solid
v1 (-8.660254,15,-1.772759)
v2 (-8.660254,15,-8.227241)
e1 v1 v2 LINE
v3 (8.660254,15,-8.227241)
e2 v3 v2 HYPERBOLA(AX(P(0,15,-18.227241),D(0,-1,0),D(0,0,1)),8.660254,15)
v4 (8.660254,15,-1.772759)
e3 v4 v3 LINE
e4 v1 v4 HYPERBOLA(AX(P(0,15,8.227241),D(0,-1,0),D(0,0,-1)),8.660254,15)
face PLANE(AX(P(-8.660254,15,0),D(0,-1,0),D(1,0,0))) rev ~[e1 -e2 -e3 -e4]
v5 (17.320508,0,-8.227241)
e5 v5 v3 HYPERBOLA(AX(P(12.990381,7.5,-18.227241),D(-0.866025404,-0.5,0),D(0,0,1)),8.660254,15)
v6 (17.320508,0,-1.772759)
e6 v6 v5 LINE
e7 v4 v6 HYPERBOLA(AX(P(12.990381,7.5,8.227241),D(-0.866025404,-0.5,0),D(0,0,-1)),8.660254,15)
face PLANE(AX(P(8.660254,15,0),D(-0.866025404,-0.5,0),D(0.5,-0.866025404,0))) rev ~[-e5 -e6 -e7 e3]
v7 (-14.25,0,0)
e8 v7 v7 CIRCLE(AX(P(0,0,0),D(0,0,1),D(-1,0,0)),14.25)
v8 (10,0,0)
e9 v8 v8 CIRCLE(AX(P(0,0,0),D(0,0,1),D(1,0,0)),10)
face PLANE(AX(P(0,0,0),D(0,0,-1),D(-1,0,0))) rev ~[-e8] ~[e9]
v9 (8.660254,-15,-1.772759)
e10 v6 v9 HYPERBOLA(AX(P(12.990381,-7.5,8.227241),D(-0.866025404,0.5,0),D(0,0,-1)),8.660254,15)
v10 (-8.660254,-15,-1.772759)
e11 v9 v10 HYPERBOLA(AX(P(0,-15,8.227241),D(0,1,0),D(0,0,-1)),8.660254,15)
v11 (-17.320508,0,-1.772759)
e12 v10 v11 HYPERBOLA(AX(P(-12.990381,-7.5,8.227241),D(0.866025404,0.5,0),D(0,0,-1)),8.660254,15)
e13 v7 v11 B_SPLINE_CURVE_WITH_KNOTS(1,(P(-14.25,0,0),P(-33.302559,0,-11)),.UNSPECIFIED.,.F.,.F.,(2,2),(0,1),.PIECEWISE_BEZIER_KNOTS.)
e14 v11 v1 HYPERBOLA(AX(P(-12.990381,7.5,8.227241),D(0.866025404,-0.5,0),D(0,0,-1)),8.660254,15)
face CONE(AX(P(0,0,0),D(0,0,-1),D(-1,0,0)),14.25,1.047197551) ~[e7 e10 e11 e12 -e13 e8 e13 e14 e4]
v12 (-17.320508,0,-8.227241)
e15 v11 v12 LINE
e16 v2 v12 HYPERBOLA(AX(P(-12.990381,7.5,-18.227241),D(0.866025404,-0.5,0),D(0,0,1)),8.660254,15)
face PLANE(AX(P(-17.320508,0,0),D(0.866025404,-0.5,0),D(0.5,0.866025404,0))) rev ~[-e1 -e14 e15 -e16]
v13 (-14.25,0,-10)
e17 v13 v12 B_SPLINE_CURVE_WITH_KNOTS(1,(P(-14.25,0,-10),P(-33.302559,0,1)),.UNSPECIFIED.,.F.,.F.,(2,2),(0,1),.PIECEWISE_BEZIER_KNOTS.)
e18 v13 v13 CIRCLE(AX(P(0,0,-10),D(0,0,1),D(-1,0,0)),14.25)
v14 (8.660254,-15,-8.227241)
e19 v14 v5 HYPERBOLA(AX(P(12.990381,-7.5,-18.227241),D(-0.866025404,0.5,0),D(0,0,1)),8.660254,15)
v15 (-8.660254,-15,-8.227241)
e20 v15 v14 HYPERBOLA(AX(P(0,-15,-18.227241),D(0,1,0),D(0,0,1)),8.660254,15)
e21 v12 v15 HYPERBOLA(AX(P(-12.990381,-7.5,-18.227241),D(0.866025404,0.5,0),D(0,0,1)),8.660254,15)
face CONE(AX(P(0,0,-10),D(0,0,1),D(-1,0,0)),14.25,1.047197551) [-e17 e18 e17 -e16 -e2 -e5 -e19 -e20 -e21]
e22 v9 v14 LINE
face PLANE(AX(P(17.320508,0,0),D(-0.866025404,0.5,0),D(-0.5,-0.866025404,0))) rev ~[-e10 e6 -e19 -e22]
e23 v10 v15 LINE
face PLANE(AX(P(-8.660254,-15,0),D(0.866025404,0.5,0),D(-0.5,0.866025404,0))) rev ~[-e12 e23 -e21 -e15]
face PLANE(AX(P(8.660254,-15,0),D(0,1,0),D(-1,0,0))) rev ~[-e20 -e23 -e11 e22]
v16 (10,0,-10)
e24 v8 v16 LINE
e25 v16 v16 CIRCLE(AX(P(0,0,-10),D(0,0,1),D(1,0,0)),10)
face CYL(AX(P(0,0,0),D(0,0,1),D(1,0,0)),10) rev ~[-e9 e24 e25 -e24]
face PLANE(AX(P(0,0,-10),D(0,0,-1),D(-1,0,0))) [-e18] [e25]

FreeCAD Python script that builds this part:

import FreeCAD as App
import Part
import Sketcher

V = App.Vector
Q = App.Units.Quantity

doc = App.newDocument("Part")
params = doc.addObject("Spreadsheet::Sheet", "Params")
for row, (alias, value) in enumerate([
    ("sketch1_diameter", "20 mm"),
    ("pad1_length", "10 mm"),
    ("sketch2_diameter", "28.5 mm"),
    ("pocket1_length", "11 mm"),
    ("pocket1_taper", "60 deg"),
], start=1):
    params.set(f"A{row}", alias)
    params.set(f"B{row}", "=" + value)
    params.setAlias(f"B{row}", alias)

body = doc.addObject("PartDesign::Body", "Body")

sketch1 = doc.addObject("Sketcher::SketchObject", "Sketch")
body.addObject(sketch1)
sketch1.AttachmentSupport = (doc.XY_Plane, [""])
sketch1.MapMode = "FlatFace"
sketch1.addGeometry([
    Part.LineSegment(V(-9, -15, 0), V(9, -15, 0)),
    Part.LineSegment(V(9, -15, 0), V(17, 0, 0)),
    Part.LineSegment(V(17, 0, 0), V(9, 15, 0)),
    Part.LineSegment(V(9, 15, 0), V(-9, 15, 0)),
    Part.LineSegment(V(-9, 15, 0), V(-17, 0, 0)),
    Part.LineSegment(V(-17, 0, 0), V(-9, -15, 0)),
    Part.Circle(V(0, 0, 0), V(0, 0, 1), 10),
], False)
sketch1.addConstraint([
    Sketcher.Constraint("Coincident", 0, 2, 1, 1),
    Sketcher.Constraint("Coincident", 1, 2, 2, 1),
    Sketcher.Constraint("Coincident", 2, 2, 3, 1),
    Sketcher.Constraint("Coincident", 3, 2, 4, 1),
    Sketcher.Constraint("Coincident", 4, 2, 5, 1),
    Sketcher.Constraint("Coincident", 5, 2, 0, 1),
    Sketcher.Constraint("Horizontal", 0),
    Sketcher.Constraint("Horizontal", 3),
    Sketcher.Constraint("Coincident", 6, 3, -1, 1),
    Sketcher.Constraint("Symmetric", 0, 2, 3, 2, -1, 1),
    Sketcher.Constraint("Symmetric", 1, 2, 4, 2, -1, 1),
    Sketcher.Constraint("PointOnObject", 1, 2, -1),
    Sketcher.Constraint("Parallel", 2, 5),
    Sketcher.Constraint("Vertical", 0, 2, 2, 2),
    Sketcher.Constraint("Diameter", 6, Q("20 mm")),
    Sketcher.Constraint("Angle", 1, Q("60 deg")),
    Sketcher.Constraint("DistanceY", 0, 2, -1, 1, Q("15 mm")),
    Sketcher.Constraint("DistanceX", 0, 1, 0, 2, Q("17.320508 mm")),
])
sketch1.setExpression("Constraints[14]", "Params.sketch1_diameter")
pad1 = doc.addObject("PartDesign::Pad", "Pad")
body.addObject(pad1)
pad1.Profile = sketch1
pad1.setExpression("Length", "Params.pad1_length")
pad1.Reversed = True

sketch2 = doc.addObject("Sketcher::SketchObject", "Sketch001")
body.addObject(sketch2)
sketch2.AttachmentSupport = (doc.XY_Plane, [""])
sketch2.MapMode = "FlatFace"
sketch2.AttachmentOffset = App.Placement(V(0, 0, -10), App.Rotation())
sketch2.addGeometry([
    Part.LineSegment(V(42, 40, 0), V(42, -40, 0)),
    Part.LineSegment(V(42, -40, 0), V(-42, -40, 0)),
    Part.LineSegment(V(-42, -40, 0), V(-42, 40, 0)),
    Part.LineSegment(V(-42, 40, 0), V(42, 40, 0)),
    Part.Circle(V(0, 0, 0), V(0, 0, 1), 14),
], False)
sketch2.addConstraint([
    Sketcher.Constraint("Coincident", 0, 2, 1, 1),
    Sketcher.Constraint("Coincident", 1, 2, 2, 1),
    Sketcher.Constraint("Coincident", 2, 2, 3, 1),
    Sketcher.Constraint("Coincident", 3, 2, 0, 1),
    Sketcher.Constraint("Vertical", 0),
    Sketcher.Constraint("Horizontal", 1),
    Sketcher.Constraint("Vertical", 2),
    Sketcher.Constraint("Horizontal", 3),
    Sketcher.Constraint("Coincident", 4, 3, -1, 1),
    Sketcher.Constraint("Symmetric", 0, 2, 2, 2, -1, 1),
    Sketcher.Constraint("Diameter", 4, Q("28.5 mm")),
    Sketcher.Constraint("DistanceX", 1, 2, 1, 1, Q("84.128 mm")),
    Sketcher.Constraint("DistanceY", 0, 2, 0, 1, Q("79.486 mm")),
])
sketch2.setExpression("Constraints[10]", "Params.sketch2_diameter")
pocket1 = doc.addObject("PartDesign::Pocket", "Pocket")
body.addObject(pocket1)
pocket1.Profile = sketch2
pocket1.setExpression("Length", "Params.pocket1_length")
pocket1.Reversed = True
pocket1.setExpression("TaperAngle", "Params.pocket1_taper")
doc.recompute()

datumplane = doc.addObject("PartDesign::Plane", "DatumPlane")
body.addObject(datumplane)
datumplane.AttachmentSupport = (doc.XY_Plane, [""])
datumplane.MapMode = "FlatFace"
datumplane.AttachmentOffset = App.Placement(V(0, 0, -5), App.Rotation())
mirrored = doc.addObject("PartDesign::Mirrored", "Mirrored")
body.addObject(mirrored)
mirrored.Originals = [pocket1]
mirrored.MirrorPlane = (datumplane, [""])
body.Tip = mirrored

doc.recompute()
